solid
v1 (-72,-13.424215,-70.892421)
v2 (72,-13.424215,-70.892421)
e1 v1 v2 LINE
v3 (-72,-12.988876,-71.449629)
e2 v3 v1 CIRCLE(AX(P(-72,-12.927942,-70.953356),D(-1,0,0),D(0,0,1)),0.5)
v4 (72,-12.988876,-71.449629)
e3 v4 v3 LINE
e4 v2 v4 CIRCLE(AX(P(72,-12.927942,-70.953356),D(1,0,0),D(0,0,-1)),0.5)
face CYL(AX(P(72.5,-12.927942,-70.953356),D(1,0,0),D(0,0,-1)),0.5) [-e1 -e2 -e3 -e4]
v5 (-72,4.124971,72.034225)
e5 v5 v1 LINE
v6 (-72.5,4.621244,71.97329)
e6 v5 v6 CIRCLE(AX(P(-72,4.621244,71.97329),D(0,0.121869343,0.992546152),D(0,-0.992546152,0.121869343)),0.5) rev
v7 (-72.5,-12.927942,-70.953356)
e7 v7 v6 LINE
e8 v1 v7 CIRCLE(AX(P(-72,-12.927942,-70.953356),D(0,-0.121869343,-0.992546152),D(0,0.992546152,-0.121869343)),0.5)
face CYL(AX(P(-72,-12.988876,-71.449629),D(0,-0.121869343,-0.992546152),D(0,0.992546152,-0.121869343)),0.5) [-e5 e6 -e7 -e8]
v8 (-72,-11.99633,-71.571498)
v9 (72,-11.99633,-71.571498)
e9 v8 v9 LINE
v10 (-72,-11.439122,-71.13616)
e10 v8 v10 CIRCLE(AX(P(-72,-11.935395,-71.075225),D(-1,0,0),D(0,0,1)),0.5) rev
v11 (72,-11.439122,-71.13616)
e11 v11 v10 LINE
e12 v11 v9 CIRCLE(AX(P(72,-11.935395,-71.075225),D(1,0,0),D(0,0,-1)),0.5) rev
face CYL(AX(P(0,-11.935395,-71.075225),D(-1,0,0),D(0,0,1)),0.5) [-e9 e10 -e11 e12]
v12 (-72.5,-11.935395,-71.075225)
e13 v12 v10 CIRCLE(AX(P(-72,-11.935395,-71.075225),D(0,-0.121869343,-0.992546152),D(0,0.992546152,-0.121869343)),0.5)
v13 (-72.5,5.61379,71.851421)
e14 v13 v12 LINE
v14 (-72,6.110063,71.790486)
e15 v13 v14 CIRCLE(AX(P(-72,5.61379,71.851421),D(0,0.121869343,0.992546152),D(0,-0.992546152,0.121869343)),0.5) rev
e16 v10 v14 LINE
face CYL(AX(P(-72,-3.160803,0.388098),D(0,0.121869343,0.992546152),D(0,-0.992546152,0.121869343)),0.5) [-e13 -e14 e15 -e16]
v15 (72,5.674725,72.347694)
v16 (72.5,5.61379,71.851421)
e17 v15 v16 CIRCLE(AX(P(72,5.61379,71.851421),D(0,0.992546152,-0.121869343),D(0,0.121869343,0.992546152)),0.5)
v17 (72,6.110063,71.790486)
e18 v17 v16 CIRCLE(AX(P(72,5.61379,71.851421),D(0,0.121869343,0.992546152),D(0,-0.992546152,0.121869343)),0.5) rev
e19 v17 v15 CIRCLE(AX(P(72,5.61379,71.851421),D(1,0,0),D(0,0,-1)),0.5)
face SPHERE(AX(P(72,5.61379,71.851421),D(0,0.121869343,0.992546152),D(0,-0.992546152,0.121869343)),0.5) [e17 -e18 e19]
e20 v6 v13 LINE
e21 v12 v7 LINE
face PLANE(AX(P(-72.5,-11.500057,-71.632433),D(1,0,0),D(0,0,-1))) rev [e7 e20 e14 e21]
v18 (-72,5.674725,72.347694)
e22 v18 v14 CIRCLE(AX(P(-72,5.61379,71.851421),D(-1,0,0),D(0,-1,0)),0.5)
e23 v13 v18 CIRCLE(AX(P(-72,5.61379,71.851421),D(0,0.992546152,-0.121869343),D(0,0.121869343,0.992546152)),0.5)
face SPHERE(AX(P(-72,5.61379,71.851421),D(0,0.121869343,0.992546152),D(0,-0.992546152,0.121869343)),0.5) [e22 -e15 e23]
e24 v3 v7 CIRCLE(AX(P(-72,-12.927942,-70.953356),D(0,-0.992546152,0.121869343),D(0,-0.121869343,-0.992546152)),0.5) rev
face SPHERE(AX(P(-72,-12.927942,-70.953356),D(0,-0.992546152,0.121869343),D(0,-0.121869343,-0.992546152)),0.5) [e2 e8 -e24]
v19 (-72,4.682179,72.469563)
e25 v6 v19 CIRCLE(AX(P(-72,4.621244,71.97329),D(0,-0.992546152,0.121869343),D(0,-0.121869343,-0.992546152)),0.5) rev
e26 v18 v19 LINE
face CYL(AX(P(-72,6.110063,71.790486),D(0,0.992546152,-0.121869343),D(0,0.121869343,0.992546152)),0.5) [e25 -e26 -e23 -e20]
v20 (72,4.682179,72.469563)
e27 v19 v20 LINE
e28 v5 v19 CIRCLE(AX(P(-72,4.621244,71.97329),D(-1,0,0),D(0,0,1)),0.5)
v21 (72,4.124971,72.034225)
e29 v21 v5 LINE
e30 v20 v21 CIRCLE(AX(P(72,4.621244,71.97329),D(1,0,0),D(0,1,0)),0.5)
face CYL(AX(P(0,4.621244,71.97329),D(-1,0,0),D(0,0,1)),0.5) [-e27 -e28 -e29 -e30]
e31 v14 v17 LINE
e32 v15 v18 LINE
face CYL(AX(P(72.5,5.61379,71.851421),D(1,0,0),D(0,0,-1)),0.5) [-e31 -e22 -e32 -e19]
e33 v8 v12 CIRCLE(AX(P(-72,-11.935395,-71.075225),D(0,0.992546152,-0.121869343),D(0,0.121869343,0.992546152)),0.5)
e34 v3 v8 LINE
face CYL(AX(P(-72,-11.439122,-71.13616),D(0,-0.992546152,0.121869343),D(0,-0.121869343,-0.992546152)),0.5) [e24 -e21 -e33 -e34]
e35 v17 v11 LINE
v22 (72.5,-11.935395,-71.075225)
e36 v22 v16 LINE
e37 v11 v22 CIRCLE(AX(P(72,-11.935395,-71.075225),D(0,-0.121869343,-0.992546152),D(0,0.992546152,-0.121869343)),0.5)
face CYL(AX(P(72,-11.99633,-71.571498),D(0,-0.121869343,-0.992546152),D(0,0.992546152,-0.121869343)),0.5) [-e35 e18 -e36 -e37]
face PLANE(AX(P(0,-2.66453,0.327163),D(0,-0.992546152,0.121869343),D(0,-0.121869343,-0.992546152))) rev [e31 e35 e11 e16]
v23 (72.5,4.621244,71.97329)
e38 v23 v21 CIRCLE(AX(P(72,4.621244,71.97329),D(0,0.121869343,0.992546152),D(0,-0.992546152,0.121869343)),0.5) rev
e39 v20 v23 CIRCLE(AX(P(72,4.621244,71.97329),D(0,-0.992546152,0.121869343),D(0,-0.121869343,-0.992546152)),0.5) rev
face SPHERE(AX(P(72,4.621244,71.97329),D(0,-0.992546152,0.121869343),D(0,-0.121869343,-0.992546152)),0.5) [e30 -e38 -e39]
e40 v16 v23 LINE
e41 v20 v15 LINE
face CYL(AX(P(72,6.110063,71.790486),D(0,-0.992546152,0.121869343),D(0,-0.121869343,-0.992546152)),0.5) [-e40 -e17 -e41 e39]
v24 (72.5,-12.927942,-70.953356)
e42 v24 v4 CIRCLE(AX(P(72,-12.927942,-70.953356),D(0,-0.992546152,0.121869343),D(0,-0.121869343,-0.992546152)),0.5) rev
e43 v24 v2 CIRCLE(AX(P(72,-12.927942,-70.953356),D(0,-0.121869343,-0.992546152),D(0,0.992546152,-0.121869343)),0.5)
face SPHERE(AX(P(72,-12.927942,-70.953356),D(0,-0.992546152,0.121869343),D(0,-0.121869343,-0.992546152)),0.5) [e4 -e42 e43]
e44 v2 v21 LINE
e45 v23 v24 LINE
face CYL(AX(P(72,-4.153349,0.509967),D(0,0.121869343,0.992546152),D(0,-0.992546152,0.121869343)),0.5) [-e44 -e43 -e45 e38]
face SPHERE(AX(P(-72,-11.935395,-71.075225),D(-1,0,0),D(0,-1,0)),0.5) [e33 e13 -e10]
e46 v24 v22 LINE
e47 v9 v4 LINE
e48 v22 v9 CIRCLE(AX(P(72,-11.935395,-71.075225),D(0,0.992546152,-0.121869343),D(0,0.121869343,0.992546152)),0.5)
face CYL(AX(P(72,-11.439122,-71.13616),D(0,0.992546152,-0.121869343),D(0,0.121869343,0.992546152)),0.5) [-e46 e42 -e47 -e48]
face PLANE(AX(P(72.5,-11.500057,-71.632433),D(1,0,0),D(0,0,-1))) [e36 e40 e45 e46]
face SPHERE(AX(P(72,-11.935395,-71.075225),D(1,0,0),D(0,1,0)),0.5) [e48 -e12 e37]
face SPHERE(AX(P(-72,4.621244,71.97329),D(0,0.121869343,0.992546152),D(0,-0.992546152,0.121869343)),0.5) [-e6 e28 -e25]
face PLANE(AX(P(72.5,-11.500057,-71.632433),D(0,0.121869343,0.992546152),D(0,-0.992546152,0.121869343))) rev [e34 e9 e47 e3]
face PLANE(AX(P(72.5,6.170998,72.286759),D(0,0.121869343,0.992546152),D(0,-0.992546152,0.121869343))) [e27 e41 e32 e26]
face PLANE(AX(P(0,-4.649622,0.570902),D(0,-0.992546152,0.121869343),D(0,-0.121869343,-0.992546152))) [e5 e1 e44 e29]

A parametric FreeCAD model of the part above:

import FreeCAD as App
import Part
import Sketcher
from FreeCAD import Vector
Q = App.Units.Quantity


def add_polygon(sketch, points):
    """Adds a closed chain of lines whose ends are joined by coincident constraints."""
    first, n = sketch.GeometryCount, len(points)
    for a, b in zip(points, points[1:] + points[:1]):
        sketch.addGeometry(Part.LineSegment(App.Vector(*a, 0), App.Vector(*b, 0)), False)
    for i in range(n):
        sketch.addConstraint(Sketcher.Constraint("Coincident", first + i, 2, first + (i + 1) % n, 1))

doc = App.newDocument("Part")
params = doc.addObject("Spreadsheet::Sheet", "Params")
for row, (alias, value) in enumerate([
    ("sketch1_width", "145 mm"),
    ("pad1_length", "2 mm"),
    ("fillet_radius", "0.5 mm"),
], start=1):
    params.set(f"A{row}", alias)
    params.set(f"B{row}", "=" + value)
    params.setAlias(f"B{row}", alias)

body = doc.addObject("PartDesign::Body", "Body")

# Sketch on an angled plane
sketch1 = body.newObject("Sketcher::SketchObject", "Sketch")
sketch1.Placement = App.Placement(Vector(0, -4.649622, 0.570902), App.Rotation(Vector(1, 0, 0), Vector(0, -0.121869343, -0.992546152), Vector(0, 0.992546152, -0.121869343), "ZXY"))
add_polygon(sketch1, [(-72.5, 72.5), (-72.5, -72.5), (72.5, -72.5), (72.5, 72.5)])  # lines 0-3
sketch1.addConstraint([
    Sketcher.Constraint("Vertical", 0),
    Sketcher.Constraint("Horizontal", 1),
    Sketcher.Constraint("Vertical", 2),
    Sketcher.Constraint("Horizontal", 3),
    Sketcher.Constraint("Symmetric", 0, 2, 2, 2, -1, 1),
    Sketcher.Constraint("Equal", 3, 0),
    Sketcher.Constraint("DistanceX", 1, 1, 1, 2, Q("145 mm")),
])
sketch1.setExpression("Constraints[10]", "Params.sketch1_width")
pad1 = body.newObject("PartDesign::Pad", "Pad")
pad1.Profile = sketch1
pad1.setExpression("Length", "Params.pad1_length")
doc.recompute()

fillet = body.newObject("PartDesign::Fillet", "Fillet")
fillet.Base = (pad1, ["Edge1"])
fillet.UseAllEdges = True
fillet.setExpression("Radius", "Params.fillet_radius")

doc.recompute()
